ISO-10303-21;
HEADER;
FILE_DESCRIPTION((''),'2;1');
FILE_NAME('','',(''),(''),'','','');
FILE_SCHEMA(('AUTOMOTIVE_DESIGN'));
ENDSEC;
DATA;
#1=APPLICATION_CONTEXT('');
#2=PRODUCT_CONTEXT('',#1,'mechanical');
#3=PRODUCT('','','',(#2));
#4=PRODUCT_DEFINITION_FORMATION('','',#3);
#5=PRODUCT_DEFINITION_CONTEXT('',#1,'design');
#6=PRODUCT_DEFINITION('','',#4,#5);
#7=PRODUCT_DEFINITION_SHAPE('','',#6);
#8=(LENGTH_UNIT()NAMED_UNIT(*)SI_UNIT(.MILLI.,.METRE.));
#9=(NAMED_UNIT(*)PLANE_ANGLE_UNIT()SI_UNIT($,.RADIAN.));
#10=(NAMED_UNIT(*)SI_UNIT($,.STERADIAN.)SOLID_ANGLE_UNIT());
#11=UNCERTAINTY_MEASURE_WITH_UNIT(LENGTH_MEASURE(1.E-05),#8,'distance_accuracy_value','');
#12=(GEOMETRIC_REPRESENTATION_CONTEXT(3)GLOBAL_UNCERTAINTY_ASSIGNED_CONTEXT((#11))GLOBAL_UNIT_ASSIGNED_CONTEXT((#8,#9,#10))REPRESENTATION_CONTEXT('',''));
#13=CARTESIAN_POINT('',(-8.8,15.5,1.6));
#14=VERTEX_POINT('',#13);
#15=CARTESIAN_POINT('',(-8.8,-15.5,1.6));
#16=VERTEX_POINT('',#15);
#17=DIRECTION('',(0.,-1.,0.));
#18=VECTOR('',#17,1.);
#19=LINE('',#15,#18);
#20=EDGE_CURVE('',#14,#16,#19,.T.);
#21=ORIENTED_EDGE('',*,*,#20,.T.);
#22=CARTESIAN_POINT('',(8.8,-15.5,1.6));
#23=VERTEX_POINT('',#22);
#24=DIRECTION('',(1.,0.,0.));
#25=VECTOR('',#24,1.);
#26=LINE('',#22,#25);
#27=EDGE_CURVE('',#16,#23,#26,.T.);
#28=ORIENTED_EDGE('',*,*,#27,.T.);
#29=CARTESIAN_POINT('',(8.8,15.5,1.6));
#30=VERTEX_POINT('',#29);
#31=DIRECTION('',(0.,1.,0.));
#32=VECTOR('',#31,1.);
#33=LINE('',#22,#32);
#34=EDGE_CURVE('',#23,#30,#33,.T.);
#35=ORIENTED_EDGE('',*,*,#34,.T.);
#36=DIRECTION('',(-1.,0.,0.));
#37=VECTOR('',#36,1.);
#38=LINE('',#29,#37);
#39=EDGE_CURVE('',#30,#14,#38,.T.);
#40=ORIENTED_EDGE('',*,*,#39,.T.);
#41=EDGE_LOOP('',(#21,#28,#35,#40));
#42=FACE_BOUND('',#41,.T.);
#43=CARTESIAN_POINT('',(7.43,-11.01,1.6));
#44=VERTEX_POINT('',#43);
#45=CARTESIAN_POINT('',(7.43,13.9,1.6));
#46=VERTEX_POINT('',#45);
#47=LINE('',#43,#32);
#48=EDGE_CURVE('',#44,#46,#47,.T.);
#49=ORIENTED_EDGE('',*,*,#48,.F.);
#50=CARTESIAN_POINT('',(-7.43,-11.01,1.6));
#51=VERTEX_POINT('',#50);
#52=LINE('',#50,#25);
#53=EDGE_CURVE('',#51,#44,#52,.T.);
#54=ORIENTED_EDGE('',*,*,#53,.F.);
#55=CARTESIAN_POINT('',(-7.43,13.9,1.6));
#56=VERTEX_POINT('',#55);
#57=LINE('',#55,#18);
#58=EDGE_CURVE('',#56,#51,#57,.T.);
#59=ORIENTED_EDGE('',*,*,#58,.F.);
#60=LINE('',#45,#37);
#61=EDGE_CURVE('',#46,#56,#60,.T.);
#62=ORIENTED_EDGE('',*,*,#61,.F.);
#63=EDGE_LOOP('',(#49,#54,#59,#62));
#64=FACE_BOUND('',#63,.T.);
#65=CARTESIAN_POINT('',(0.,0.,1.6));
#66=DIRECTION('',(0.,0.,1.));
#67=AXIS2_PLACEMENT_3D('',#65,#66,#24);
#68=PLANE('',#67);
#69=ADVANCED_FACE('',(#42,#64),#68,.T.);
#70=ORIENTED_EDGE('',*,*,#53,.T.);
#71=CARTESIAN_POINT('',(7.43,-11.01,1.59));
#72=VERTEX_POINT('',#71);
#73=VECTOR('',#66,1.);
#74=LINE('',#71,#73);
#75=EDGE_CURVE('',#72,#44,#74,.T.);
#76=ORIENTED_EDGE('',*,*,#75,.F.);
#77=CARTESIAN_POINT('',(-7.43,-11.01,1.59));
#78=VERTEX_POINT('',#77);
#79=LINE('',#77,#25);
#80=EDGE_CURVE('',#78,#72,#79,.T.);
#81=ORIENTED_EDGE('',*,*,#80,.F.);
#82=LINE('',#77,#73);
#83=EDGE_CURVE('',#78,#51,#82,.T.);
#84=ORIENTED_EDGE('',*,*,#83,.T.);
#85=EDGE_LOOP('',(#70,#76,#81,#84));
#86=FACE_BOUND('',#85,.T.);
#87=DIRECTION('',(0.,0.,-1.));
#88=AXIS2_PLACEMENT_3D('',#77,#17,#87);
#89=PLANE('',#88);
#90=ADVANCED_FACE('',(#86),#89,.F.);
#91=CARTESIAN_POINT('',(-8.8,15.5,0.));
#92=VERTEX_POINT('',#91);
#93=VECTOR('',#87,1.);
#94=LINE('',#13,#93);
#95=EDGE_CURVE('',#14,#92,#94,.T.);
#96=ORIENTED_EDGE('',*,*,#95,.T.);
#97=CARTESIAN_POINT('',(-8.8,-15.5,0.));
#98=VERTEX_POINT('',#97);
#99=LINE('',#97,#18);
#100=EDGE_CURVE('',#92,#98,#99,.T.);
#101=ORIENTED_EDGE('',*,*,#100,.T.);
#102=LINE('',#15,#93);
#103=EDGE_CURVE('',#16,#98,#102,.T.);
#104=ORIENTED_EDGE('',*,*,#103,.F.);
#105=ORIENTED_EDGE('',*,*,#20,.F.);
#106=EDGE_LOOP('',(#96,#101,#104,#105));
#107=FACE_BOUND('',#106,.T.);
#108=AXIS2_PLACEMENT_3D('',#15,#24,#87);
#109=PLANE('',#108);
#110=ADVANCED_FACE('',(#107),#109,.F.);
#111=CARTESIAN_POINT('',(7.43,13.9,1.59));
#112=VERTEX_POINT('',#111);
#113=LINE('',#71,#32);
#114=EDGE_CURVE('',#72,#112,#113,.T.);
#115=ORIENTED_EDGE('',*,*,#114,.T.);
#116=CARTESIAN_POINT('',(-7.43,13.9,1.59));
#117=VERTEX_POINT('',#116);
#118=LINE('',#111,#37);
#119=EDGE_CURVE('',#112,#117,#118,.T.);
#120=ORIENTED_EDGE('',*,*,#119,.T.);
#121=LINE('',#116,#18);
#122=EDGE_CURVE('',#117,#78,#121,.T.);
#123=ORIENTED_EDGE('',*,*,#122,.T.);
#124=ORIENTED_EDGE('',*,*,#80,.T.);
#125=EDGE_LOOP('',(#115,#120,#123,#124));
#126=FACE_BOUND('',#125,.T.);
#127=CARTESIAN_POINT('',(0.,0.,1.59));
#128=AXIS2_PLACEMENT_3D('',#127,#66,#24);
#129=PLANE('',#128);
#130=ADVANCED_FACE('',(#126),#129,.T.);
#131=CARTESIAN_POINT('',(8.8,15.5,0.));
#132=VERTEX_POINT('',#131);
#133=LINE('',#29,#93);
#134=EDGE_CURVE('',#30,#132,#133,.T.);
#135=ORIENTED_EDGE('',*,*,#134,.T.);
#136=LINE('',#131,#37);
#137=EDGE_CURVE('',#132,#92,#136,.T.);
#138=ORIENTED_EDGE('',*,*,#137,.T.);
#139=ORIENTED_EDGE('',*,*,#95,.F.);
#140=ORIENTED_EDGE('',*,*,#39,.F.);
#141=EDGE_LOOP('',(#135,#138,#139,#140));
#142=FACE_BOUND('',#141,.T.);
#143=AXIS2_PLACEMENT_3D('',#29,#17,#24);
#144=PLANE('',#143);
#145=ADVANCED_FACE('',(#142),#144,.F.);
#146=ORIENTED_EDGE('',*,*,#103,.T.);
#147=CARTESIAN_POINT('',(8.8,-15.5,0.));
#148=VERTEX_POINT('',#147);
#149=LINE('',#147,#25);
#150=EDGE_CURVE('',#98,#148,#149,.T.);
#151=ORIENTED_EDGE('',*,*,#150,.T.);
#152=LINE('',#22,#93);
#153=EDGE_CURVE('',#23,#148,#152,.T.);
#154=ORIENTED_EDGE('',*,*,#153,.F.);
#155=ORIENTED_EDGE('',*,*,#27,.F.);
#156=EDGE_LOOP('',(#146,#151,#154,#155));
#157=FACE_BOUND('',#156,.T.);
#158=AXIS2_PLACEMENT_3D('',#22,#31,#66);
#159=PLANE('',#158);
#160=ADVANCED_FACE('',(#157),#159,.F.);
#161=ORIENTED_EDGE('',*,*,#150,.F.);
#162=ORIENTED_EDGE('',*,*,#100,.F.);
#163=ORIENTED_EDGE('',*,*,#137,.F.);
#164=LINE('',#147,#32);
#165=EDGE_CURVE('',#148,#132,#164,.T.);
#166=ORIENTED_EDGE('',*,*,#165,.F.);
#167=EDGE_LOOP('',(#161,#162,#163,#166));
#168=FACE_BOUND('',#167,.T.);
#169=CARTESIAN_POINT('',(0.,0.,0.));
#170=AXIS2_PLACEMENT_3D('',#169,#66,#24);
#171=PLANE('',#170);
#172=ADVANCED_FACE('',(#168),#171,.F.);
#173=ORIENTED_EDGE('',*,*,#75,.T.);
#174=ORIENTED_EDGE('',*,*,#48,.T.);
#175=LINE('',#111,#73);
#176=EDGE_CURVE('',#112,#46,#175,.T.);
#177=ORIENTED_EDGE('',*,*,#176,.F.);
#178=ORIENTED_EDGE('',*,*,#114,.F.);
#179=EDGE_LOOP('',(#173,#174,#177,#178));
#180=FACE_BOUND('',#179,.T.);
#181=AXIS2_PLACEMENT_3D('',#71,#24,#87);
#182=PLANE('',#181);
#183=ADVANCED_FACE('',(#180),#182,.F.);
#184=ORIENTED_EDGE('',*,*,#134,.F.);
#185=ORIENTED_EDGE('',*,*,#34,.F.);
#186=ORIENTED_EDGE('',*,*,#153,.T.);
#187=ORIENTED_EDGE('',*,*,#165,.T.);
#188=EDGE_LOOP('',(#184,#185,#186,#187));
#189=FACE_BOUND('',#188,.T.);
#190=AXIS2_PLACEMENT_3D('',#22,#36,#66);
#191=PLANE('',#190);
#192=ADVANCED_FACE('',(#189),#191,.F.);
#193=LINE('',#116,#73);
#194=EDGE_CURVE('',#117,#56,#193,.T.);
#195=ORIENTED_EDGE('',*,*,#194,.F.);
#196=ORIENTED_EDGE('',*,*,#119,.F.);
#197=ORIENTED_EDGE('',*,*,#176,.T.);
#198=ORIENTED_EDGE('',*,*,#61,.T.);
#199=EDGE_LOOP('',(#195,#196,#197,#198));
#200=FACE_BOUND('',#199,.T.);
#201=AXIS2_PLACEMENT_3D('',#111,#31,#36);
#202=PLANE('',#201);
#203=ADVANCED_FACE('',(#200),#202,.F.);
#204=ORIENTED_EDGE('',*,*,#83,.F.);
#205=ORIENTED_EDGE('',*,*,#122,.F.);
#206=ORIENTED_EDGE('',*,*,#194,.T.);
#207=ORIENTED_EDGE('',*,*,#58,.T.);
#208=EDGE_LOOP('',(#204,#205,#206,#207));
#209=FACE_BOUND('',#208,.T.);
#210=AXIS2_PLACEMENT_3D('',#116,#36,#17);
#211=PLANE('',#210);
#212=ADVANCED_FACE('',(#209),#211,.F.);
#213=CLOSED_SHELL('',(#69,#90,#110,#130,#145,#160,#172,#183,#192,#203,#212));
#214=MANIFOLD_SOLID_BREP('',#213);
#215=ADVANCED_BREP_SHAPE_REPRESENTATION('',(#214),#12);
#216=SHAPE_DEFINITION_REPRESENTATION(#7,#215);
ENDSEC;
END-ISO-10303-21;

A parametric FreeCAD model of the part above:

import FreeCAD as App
import Part
import Sketcher
Q = App.Units.Quantity


def add_polygon(sketch, points):
    """Adds a closed chain of lines whose ends are joined by coincident constraints."""
    first, n = sketch.GeometryCount, len(points)
    for a, b in zip(points, points[1:] + points[:1]):
        sketch.addGeometry(Part.LineSegment(App.Vector(*a, 0), App.Vector(*b, 0)), False)
    for i in range(n):
        sketch.addConstraint(Sketcher.Constraint("Coincident", first + i, 2, first + (i + 1) % n, 1))

doc = App.newDocument("Part")
body = doc.addObject("PartDesign::Body", "Body")

# Sketch on XY plane
sketch1 = body.newObject("Sketcher::SketchObject", "Sketch")
sketch1.AttachmentSupport = (doc.getObject("XY_Plane"), [""])
sketch1.MapMode = "FlatFace"
add_polygon(sketch1, [(-9, 16), (-9, -16), (9, -16), (9, 16)])  # lines 0-3
sketch1.addConstraint([
    Sketcher.Constraint("Vertical", 0),
    Sketcher.Constraint("Horizontal", 1),
    Sketcher.Constraint("Vertical", 2),
    Sketcher.Constraint("Horizontal", 3),
    Sketcher.Constraint("Symmetric", 0, 2, 2, 2, -1, 1),
    Sketcher.Constraint("DistanceY", 0, 2, 0, 1, Q("31 mm")),
    Sketcher.Constraint("DistanceX", 1, 1, 1, 2, Q("17.6 mm")),
])
pad1 = body.newObject("PartDesign::Pad", "Pad")
pad1.Profile = sketch1
pad1.Length = 1.6

# Sketch on XY plane
sketch2 = body.newObject("Sketcher::SketchObject", "Sketch001")
sketch2.AttachmentSupport = (doc.getObject("XY_Plane"), [""])
sketch2.MapMode = "FlatFace"
sketch2.AttachmentOffset = App.Placement(App.Vector(0, 0, 1.6), App.Rotation())
add_polygon(sketch2, [(-7, 14), (-7, -11), (7, -11), (7, 14)])  # lines 0-3
sketch2.addConstraint([
    Sketcher.Constraint("Vertical", 0),
    Sketcher.Constraint("Horizontal", 1),
    Sketcher.Constraint("Vertical", 2),
    Sketcher.Constraint("Horizontal", 3),
    Sketcher.Constraint("DistanceX", 1, 1, 1, 2, Q("14.86 mm")),
    Sketcher.Constraint("DistanceY", 0, 2, 0, 1, Q("24.91 mm")),
    Sketcher.Constraint("DistanceY", -1, 1, 2, 2, Q("13.9 mm")),
    Sketcher.Constraint("DistanceX", 0, 2, -1, 1, Q("7.43 mm")),
])
pocket1 = body.newObject("PartDesign::Pocket", "Pocket")
pocket1.Profile = sketch2
pocket1.Length = 0.01

doc.recompute()
